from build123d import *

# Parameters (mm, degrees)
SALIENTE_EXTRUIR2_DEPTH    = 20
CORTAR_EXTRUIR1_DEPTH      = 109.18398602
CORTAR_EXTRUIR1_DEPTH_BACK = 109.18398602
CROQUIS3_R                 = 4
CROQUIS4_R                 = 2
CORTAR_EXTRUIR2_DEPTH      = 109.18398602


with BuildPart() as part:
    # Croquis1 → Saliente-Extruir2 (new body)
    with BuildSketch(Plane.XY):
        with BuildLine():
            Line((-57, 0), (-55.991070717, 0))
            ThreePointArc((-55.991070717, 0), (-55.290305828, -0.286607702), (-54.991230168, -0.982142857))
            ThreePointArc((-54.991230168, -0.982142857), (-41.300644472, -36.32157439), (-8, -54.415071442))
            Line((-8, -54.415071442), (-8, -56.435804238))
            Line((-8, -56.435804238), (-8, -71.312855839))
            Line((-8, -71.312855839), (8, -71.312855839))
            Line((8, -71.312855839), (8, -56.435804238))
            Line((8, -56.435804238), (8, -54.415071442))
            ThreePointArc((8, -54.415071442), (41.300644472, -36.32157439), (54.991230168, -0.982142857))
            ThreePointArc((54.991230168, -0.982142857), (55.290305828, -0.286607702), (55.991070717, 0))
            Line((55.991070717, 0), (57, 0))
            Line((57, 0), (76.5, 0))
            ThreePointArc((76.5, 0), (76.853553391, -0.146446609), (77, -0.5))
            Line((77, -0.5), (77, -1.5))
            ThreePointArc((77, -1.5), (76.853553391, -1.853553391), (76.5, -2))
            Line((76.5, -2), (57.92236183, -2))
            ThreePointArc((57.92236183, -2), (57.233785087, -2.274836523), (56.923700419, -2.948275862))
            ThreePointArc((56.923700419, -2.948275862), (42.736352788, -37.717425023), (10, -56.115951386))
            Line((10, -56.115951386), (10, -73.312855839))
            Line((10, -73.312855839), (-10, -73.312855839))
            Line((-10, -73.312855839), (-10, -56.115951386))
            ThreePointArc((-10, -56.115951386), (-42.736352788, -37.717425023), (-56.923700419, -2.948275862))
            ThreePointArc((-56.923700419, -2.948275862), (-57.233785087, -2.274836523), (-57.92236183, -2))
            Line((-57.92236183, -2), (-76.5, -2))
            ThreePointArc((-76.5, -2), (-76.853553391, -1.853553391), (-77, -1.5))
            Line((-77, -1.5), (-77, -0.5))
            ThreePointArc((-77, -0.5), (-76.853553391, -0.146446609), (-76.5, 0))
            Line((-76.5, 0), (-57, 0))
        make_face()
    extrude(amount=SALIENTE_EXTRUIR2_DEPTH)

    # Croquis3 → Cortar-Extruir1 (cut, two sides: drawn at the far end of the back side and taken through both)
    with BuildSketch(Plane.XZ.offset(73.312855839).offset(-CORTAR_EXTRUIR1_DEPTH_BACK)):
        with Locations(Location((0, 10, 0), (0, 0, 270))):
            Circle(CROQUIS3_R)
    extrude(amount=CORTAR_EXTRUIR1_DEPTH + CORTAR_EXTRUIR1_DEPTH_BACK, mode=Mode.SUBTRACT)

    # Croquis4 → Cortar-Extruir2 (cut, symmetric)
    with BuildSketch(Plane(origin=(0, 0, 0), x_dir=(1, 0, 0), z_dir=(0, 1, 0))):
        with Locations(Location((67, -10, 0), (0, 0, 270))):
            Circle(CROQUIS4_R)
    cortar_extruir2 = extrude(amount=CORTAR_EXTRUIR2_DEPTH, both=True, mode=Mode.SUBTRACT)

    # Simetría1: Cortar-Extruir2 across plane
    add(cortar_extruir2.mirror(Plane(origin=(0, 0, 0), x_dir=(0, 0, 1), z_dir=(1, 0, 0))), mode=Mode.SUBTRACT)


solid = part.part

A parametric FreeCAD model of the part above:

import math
import FreeCAD as App
import Part
import Sketcher
Q = App.Units.Quantity

doc = App.newDocument("Part")
params = doc.addObject("Spreadsheet::Sheet", "Params")
for row, (alias, value) in enumerate([
    ("sketch1_radius", "1 mm"),
    ("sketch1_radius2", "57 mm"),
    ("sketch1_radius3", "55 mm"),
    ("sketch1_radius4", "0.5 mm"),
    ("sketch1_width", "20 mm"),
    ("pad1_length", "20 mm"),
    ("sketch2_diameter", "8 mm"),
    ("sketch3_diameter", "4 mm"),
    ("pocket2_length", "218.367972 mm"),
], start=1):
    params.set(f"A{row}", alias)
    params.set(f"B{row}", "=" + value)
    params.setAlias(f"B{row}", alias)

body = doc.addObject("PartDesign::Body", "Body")

sketch1 = body.newObject("Sketcher::SketchObject", "Sketch")
sketch1.AttachmentSupport = (doc.getObject("XY_Plane"), [""])
sketch1.MapMode = "FlatFace"
sketch1.addGeometry([
    Part.ArcOfCircle(Part.Circle(App.Vector(-55.99, -1, 0), App.Vector(0, 0, 1), 1), math.radians(1), math.radians(90)),
    Part.LineSegment(App.Vector(-55.99, 0, 0), App.Vector(-76.5, 0, 0)),
    Part.ArcOfCircle(Part.Circle(App.Vector(-76.5, -0.5, 0), App.Vector(0, 0, 1), 0.5), math.radians(90), math.radians(180)),
    Part.LineSegment(App.Vector(-77, -0.5, 0), App.Vector(-77, -1.5, 0)),
    Part.ArcOfCircle(Part.Circle(App.Vector(-76.5, -1.5, 0), App.Vector(0, 0, 1), 0.5), math.radians(180), math.radians(270)),
    Part.LineSegment(App.Vector(-76.5, -2, 0), App.Vector(-57.92, -2, 0)),
    Part.ArcOfCircle(Part.Circle(App.Vector(-57.92, -3, 0), App.Vector(0, 0, 1), 1), math.radians(3), math.radians(90)),
    Part.ArcOfCircle(Part.Circle(App.Vector(0, 0, 0), App.Vector(0, 0, 1), 57), math.radians(-177), math.radians(-100)),
    Part.LineSegment(App.Vector(-10, -56.12, 0), App.Vector(-10, -73.31, 0)),
    Part.LineSegment(App.Vector(-10, -73.31, 0), App.Vector(10, -73.31, 0)),
    Part.LineSegment(App.Vector(10, -73.31, 0), App.Vector(10, -56.12, 0)),
    Part.ArcOfCircle(Part.Circle(App.Vector(0, 0, 0), App.Vector(0, 0, 1), 57), math.radians(-80), math.radians(-3)),
    Part.ArcOfCircle(Part.Circle(App.Vector(57.92, -3, 0), App.Vector(0, 0, 1), 1), math.radians(90), math.radians(177)),
    Part.LineSegment(App.Vector(57.92, -2, 0), App.Vector(76.5, -2, 0)),
    Part.ArcOfCircle(Part.Circle(App.Vector(76.5, -1.5, 0), App.Vector(0, 0, 1), 0.5), math.radians(-90), math.radians(0)),
    Part.LineSegment(App.Vector(77, -1.5, 0), App.Vector(77, -0.5, 0)),
    Part.ArcOfCircle(Part.Circle(App.Vector(76.5, -0.5, 0), App.Vector(0, 0, 1), 0.5), math.radians(0), math.radians(90)),
    Part.LineSegment(App.Vector(76.5, 0, 0), App.Vector(55.99, 0, 0)),
    Part.ArcOfCircle(Part.Circle(App.Vector(55.99, -1, 0), App.Vector(0, 0, 1), 1), math.radians(90), math.radians(179)),
    Part.ArcOfCircle(Part.Circle(App.Vector(0, 0, 0), App.Vector(0, 0, 1), 55), math.radians(-82), math.radians(-1)),
    Part.LineSegment(App.Vector(8, -54.42, 0), App.Vector(8, -71.31, 0)),
    Part.LineSegment(App.Vector(8, -71.31, 0), App.Vector(-8, -71.31, 0)),
    Part.LineSegment(App.Vector(-8, -71.31, 0), App.Vector(-8, -54.42, 0)),
    Part.ArcOfCircle(Part.Circle(App.Vector(0, 0, 0), App.Vector(0, 0, 1), 55), math.radians(-179), math.radians(-98)),
], False)
sketch1.addConstraint([
    Sketcher.Constraint("Tangent", 0, 2, 1, 1),
    Sketcher.Constraint("Tangent", 1, 2, 2, 1),
    Sketcher.Constraint("Tangent", 2, 2, 3, 1),
    Sketcher.Constraint("Tangent", 3, 2, 4, 1),
    Sketcher.Constraint("Tangent", 4, 2, 5, 1),
    Sketcher.Constraint("Tangent", 5, 2, 6, 2),
    Sketcher.Constraint("Tangent", 6, 1, 7, 1),
    Sketcher.Constraint("Coincident", 7, 2, 8, 1),
    Sketcher.Constraint("Coincident", 8, 2, 9, 1),
    Sketcher.Constraint("Coincident", 9, 2, 10, 1),
    Sketcher.Constraint("Coincident", 10, 2, 11, 1),
    Sketcher.Constraint("Tangent", 11, 2, 12, 2),
    Sketcher.Constraint("Tangent", 12, 1, 13, 1),
    Sketcher.Constraint("Tangent", 13, 2, 14, 1),
    Sketcher.Constraint("Tangent", 14, 2, 15, 1),
    Sketcher.Constraint("Tangent", 15, 2, 16, 1),
    Sketcher.Constraint("Tangent", 16, 2, 17, 1),
    Sketcher.Constraint("Tangent", 17, 2, 18, 1),
    Sketcher.Constraint("Tangent", 18, 2, 19, 2),
    Sketcher.Constraint("Coincident", 19, 1, 20, 1),
    Sketcher.Constraint("Coincident", 20, 2, 21, 1),
    Sketcher.Constraint("Coincident", 21, 2, 22, 1),
    Sketcher.Constraint("Coincident", 22, 2, 23, 2),
    Sketcher.Constraint("Tangent", 23, 1, 0, 1),
    Sketcher.Constraint("Horizontal", 1),
    Sketcher.Constraint("Vertical", 3),
    Sketcher.Constraint("Horizontal", 5),
    Sketcher.Constraint("Vertical", 8),
    Sketcher.Constraint("Horizontal", 9),
    Sketcher.Constraint("Vertical", 10),
    Sketcher.Constraint("Horizontal", 13),
    Sketcher.Constraint("Vertical", 15),
    Sketcher.Constraint("Horizontal", 17),
    Sketcher.Constraint("Vertical", 20),
    Sketcher.Constraint("Horizontal", 21),
    Sketcher.Constraint("Vertical", 22),
    Sketcher.Constraint("Coincident", 7, 3, -1, 1),
    Sketcher.Constraint("Coincident", 11, 3, -1, 1),
    Sketcher.Constraint("Coincident", 19, 3, -1, 1),
    Sketcher.Constraint("Coincident", 23, 3, -1, 1),
    Sketcher.Constraint("Equal", 2, 4),
    Sketcher.Constraint("Equal", 0, 6),
    Sketcher.Constraint("Equal", 7, 11),
    Sketcher.Constraint("Equal", 6, 12),
    Sketcher.Constraint("Equal", 4, 14),
    Sketcher.Constraint("Equal", 14, 16),
    Sketcher.Constraint("Equal", 12, 18),
    Sketcher.Constraint("Equal", 19, 23),
    Sketcher.Constraint("Symmetric", 1, 2, 16, 2, -1, 1),
    Sketcher.Constraint("PointOnObject", 0, 2, -1),
    Sketcher.Constraint("Horizontal", 6, 3, 12, 3),
    Sketcher.Constraint("Horizontal", 7, 2, 10, 2),
    Sketcher.Constraint("Horizontal", 19, 1, 22, 2),
    Sketcher.Constraint("Radius", 0, Q("1 mm")),
    Sketcher.Constraint("Radius", 7, Q("57 mm")),
    Sketcher.Constraint("Radius", 19, Q("55 mm")),
    Sketcher.Constraint("Radius", 2, Q("0.5 mm")),
    Sketcher.Constraint("DistanceX", 9, 1, 9, 2, Q("20 mm")),
    Sketcher.Constraint("DistanceX", 21, 2, 21, 1, Q("16 mm")),
    Sketcher.Constraint("DistanceY", 3, 2, 3, 1, Q("1 mm")),
    Sketcher.Constraint("DistanceX", 2, 2, -1, 1, Q("77 mm")),
    Sketcher.Constraint("DistanceY", 9, 2, 20, 2, Q("2 mm")),
    Sketcher.Constraint("DistanceY", 8, 2, 8, 1, Q("17.196904 mm")),
])
sketch1.setExpression("Constraints[53]", "Params.sketch1_radius")
sketch1.setExpression("Constraints[54]", "Params.sketch1_radius2")
sketch1.setExpression("Constraints[55]", "Params.sketch1_radius3")
sketch1.setExpression("Constraints[56]", "Params.sketch1_radius4")
sketch1.setExpression("Constraints[57]", "Params.sketch1_width")
pad1 = body.newObject("PartDesign::Pad", "Pad")
pad1.Profile = sketch1
pad1.setExpression("Length", "Params.pad1_length")

sketch2 = body.newObject("Sketcher::SketchObject", "Sketch001")
sketch2.AttachmentSupport = (doc.getObject("XZ_Plane"), [""])
sketch2.MapMode = "FlatFace"
sketch2.AttachmentOffset = App.Placement(App.Vector(0, 0, 73.312856), App.Rotation())
sketch2.addGeometry(Part.Circle(App.Vector(0, 10, 0), App.Vector(0, 0, 1), 4), False)
sketch2.addConstraint([
    Sketcher.Constraint("PointOnObject", 0, 3, -2),
    Sketcher.Constraint("Diameter", 0, Q("8 mm")),
    Sketcher.Constraint("DistanceY", -1, 1, 0, 3, Q("10 mm")),
])
sketch2.setExpression("Constraints[1]", "Params.sketch2_diameter")
pocket1 = body.newObject("PartDesign::Pocket", "Pocket")
pocket1.Profile = sketch2
pocket1.Type = "ThroughAll"
pocket1.Midplane = True

sketch3 = body.newObject("Sketcher::SketchObject", "Sketch002")
sketch3.AttachmentSupport = (doc.getObject("XZ_Plane"), [""])
sketch3.MapMode = "FlatFace"
sketch3.addGeometry(Part.Circle(App.Vector(67, 10, 0), App.Vector(0, 0, 1), 2), False)
sketch3.addConstraint([
    Sketcher.Constraint("Diameter", 0, Q("4 mm")),
    Sketcher.Constraint("DistanceX", -1, 1, 0, 3, Q("67 mm")),
    Sketcher.Constraint("DistanceY", -1, 1, 0, 3, Q("10 mm")),
])
sketch3.setExpression("Constraints[0]", "Params.sketch3_diameter")
pocket2 = body.newObject("PartDesign::Pocket", "Pocket001")
pocket2.Profile = sketch3
pocket2.setExpression("Length", "Params.pocket2_length")
pocket2.Midplane = True
doc.recompute()

mirrored = body.newObject("PartDesign::Mirrored", "Mirrored")
mirrored.Originals = [pocket2]
mirrored.MirrorPlane = (doc.getObject("YZ_Plane"), [""])
body.Tip = mirrored

doc.recompute()
